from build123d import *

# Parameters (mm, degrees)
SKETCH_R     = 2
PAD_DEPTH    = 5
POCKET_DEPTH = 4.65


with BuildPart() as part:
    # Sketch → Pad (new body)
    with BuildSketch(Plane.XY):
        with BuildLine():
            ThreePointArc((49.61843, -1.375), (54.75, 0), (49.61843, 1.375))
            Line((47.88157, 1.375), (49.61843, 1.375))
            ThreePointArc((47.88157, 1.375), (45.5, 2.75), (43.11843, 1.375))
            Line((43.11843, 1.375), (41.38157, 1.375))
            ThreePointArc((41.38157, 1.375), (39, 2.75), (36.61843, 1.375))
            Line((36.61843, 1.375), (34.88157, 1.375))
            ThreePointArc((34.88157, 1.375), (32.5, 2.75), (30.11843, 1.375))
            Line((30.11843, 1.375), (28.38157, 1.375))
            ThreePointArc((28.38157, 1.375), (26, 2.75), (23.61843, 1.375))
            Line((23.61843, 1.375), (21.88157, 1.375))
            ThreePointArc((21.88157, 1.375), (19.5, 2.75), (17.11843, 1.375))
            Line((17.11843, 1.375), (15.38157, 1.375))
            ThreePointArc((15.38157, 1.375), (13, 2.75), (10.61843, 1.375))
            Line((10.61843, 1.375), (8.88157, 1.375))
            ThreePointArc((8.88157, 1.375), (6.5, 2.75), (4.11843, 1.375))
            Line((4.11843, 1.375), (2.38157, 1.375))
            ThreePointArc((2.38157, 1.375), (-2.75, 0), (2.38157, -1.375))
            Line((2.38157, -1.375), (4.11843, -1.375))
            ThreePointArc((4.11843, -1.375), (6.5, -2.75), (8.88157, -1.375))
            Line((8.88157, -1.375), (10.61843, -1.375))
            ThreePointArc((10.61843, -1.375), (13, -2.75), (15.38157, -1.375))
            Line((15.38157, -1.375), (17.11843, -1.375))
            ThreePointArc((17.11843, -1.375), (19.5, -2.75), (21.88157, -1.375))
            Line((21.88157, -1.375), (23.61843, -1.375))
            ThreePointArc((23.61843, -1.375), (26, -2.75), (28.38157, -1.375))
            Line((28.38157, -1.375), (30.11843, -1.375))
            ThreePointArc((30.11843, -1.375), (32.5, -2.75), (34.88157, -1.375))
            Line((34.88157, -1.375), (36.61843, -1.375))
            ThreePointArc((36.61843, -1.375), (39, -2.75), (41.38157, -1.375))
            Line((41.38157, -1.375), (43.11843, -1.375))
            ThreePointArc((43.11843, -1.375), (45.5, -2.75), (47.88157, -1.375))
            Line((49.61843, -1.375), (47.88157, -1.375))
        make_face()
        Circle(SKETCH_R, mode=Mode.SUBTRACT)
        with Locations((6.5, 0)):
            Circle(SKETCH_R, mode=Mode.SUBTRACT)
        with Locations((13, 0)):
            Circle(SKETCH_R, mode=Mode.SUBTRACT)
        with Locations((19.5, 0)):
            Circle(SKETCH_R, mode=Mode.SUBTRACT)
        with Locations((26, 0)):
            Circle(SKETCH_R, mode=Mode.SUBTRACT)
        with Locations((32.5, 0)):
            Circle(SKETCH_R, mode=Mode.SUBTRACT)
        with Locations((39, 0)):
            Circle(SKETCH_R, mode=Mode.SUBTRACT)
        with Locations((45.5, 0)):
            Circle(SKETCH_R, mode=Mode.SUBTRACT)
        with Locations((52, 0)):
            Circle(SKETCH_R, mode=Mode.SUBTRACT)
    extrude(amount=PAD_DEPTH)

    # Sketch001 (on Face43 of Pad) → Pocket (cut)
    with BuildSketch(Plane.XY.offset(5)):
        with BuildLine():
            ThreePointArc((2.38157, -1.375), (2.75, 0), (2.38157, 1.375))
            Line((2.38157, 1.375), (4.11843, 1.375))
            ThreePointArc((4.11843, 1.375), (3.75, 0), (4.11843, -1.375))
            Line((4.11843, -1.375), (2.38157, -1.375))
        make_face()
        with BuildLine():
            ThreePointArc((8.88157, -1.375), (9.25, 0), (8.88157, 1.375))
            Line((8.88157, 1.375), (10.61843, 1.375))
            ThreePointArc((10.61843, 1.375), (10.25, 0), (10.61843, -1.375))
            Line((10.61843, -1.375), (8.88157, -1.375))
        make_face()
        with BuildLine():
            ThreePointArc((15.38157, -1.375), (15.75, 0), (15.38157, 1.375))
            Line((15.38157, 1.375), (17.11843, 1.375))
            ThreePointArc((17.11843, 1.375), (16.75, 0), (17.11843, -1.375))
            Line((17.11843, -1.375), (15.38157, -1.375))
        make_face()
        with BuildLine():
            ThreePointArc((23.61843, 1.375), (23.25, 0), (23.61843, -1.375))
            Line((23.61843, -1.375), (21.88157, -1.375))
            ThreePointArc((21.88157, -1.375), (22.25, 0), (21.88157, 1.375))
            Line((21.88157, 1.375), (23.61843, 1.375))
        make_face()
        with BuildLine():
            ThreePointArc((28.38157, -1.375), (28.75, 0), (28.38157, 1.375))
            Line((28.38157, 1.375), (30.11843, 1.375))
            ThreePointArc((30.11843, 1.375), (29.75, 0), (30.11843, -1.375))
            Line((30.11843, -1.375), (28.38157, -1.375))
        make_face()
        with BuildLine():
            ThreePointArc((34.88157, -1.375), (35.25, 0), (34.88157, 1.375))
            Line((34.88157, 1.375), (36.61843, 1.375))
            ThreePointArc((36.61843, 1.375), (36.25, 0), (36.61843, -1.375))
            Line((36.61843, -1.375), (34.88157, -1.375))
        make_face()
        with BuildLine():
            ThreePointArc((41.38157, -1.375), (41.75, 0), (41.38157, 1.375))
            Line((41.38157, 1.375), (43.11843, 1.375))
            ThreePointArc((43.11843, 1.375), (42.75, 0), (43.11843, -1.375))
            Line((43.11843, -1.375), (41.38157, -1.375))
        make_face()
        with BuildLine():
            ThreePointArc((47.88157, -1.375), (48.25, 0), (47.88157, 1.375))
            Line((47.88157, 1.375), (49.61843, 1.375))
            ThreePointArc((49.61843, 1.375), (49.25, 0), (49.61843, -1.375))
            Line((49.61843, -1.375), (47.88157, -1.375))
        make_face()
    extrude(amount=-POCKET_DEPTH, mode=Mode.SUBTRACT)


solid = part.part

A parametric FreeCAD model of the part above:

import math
import FreeCAD as App
import Part
import Sketcher
from FreeCAD import Vector
Q = App.Units.Quantity

doc = App.newDocument("Part")
body = doc.addObject("PartDesign::Body", "Body")

sketch1 = body.newObject("Sketcher::SketchObject", "Sketch")
sketch1.AttachmentSupport = (doc.getObject("XY_Plane"), [""])
sketch1.MapMode = "FlatFace"
sketch1.addGeometry([
    Part.ArcOfCircle(Part.Circle(Vector(52, 0, 0), Vector(0, 0, 1), 2.8), math.radians(-150), math.radians(150)),
    Part.LineSegment(Vector(49.6, 1.4, 0), Vector(47.9, 1.4, 0)),
    Part.ArcOfCircle(Part.Circle(Vector(45.5, 0, 0), Vector(0, 0, 1), 2.8), math.radians(30), math.radians(150)),
    Part.LineSegment(Vector(43.1, 1.4, 0), Vector(41.4, 1.4, 0)),
    Part.ArcOfCircle(Part.Circle(Vector(39, 0, 0), Vector(0, 0, 1), 2.8), math.radians(30), math.radians(150)),
    Part.LineSegment(Vector(36.6, 1.4, 0), Vector(34.9, 1.4, 0)),
    Part.ArcOfCircle(Part.Circle(Vector(32.5, 0, 0), Vector(0, 0, 1), 2.8), math.radians(30), math.radians(150)),
    Part.LineSegment(Vector(30.1, 1.4, 0), Vector(28.4, 1.4, 0)),
    Part.ArcOfCircle(Part.Circle(Vector(26, 0, 0), Vector(0, 0, 1), 2.8), math.radians(30), math.radians(150)),
    Part.LineSegment(Vector(23.6, 1.4, 0), Vector(21.9, 1.4, 0)),
    Part.ArcOfCircle(Part.Circle(Vector(19.5, 0, 0), Vector(0, 0, 1), 2.8), math.radians(30), math.radians(150)),
    Part.LineSegment(Vector(17.1, 1.4, 0), Vector(15.4, 1.4, 0)),
    Part.ArcOfCircle(Part.Circle(Vector(13, 0, 0), Vector(0, 0, 1), 2.8), math.radians(30), math.radians(150)),
    Part.LineSegment(Vector(10.6, 1.4, 0), Vector(8.9, 1.4, 0)),
    Part.ArcOfCircle(Part.Circle(Vector(6.5, 0, 0), Vector(0, 0, 1), 2.8), math.radians(30), math.radians(150)),
    Part.LineSegment(Vector(4.1, 1.4, 0), Vector(2.4, 1.4, 0)),
    Part.ArcOfCircle(Part.Circle(Vector(0, 0, 0), Vector(0, 0, 1), 2.8), math.radians(30), math.radians(330)),
    Part.LineSegment(Vector(2.4, -1.4, 0), Vector(4.1, -1.4, 0)),
    Part.ArcOfCircle(Part.Circle(Vector(6.5, 0, 0), Vector(0, 0, 1), 2.8), math.radians(-150), math.radians(-30)),
    Part.LineSegment(Vector(8.9, -1.4, 0), Vector(10.6, -1.4, 0)),
    Part.ArcOfCircle(Part.Circle(Vector(13, 0, 0), Vector(0, 0, 1), 2.8), math.radians(-150), math.radians(-30)),
    Part.LineSegment(Vector(15.4, -1.4, 0), Vector(17.1, -1.4, 0)),
    Part.ArcOfCircle(Part.Circle(Vector(19.5, 0, 0), Vector(0, 0, 1), 2.8), math.radians(-150), math.radians(-30)),
    Part.LineSegment(Vector(21.9, -1.4, 0), Vector(23.6, -1.4, 0)),
    Part.ArcOfCircle(Part.Circle(Vector(26, 0, 0), Vector(0, 0, 1), 2.8), math.radians(-150), math.radians(-30)),
    Part.LineSegment(Vector(28.4, -1.4, 0), Vector(30.1, -1.4, 0)),
    Part.ArcOfCircle(Part.Circle(Vector(32.5, 0, 0), Vector(0, 0, 1), 2.8), math.radians(-150), math.radians(-30)),
    Part.LineSegment(Vector(34.9, -1.4, 0), Vector(36.6, -1.4, 0)),
    Part.ArcOfCircle(Part.Circle(Vector(39, 0, 0), Vector(0, 0, 1), 2.8), math.radians(-150), math.radians(-30)),
    Part.LineSegment(Vector(41.4, -1.4, 0), Vector(43.1, -1.4, 0)),
    Part.ArcOfCircle(Part.Circle(Vector(45.5, 0, 0), Vector(0, 0, 1), 2.8), math.radians(-150), math.radians(-30)),
    Part.LineSegment(Vector(47.9, -1.4, 0), Vector(49.6, -1.4, 0)),
    Part.Circle(Vector(0, 0, 0), Vector(0, 0, 1), 2),
    Part.Circle(Vector(6.5, 0, 0), Vector(0, 0, 1), 2),
    Part.Circle(Vector(13, 0, 0), Vector(0, 0, 1), 2),
    Part.Circle(Vector(19.5, 0, 0), Vector(0, 0, 1), 2),
    Part.Circle(Vector(26, 0, 0), Vector(0, 0, 1), 2),
    Part.Circle(Vector(32.5, 0, 0), Vector(0, 0, 1), 2),
    Part.Circle(Vector(39, 0, 0), Vector(0, 0, 1), 2),
    Part.Circle(Vector(45.5, 0, 0), Vector(0, 0, 1), 2),
    Part.Circle(Vector(52, 0, 0), Vector(0, 0, 1), 2),
], False)
sketch1.addConstraint([
    Sketcher.Constraint("Coincident", 0, 2, 1, 1),
    Sketcher.Constraint("Coincident", 1, 2, 2, 1),
    Sketcher.Constraint("Coincident", 2, 2, 3, 1),
    Sketcher.Constraint("Coincident", 3, 2, 4, 1),
    Sketcher.Constraint("Coincident", 4, 2, 5, 1),
    Sketcher.Constraint("Coincident", 5, 2, 6, 1),
    Sketcher.Constraint("Coincident", 6, 2, 7, 1),
    Sketcher.Constraint("Coincident", 7, 2, 8, 1),
    Sketcher.Constraint("Coincident", 8, 2, 9, 1),
    Sketcher.Constraint("Coincident", 9, 2, 10, 1),
    Sketcher.Constraint("Coincident", 10, 2, 11, 1),
    Sketcher.Constraint("Coincident", 11, 2, 12, 1),
    Sketcher.Constraint("Coincident", 12, 2, 13, 1),
    Sketcher.Constraint("Coincident", 13, 2, 14, 1),
    Sketcher.Constraint("Coincident", 14, 2, 15, 1),
    Sketcher.Constraint("Coincident", 15, 2, 16, 1),
    Sketcher.Constraint("Coincident", 16, 2, 17, 1),
    Sketcher.Constraint("Coincident", 17, 2, 18, 1),
    Sketcher.Constraint("Coincident", 18, 2, 19, 1),
    Sketcher.Constraint("Coincident", 19, 2, 20, 1),
    Sketcher.Constraint("Coincident", 20, 2, 21, 1),
    Sketcher.Constraint("Coincident", 21, 2, 22, 1),
    Sketcher.Constraint("Coincident", 22, 2, 23, 1),
    Sketcher.Constraint("Coincident", 23, 2, 24, 1),
    Sketcher.Constraint("Coincident", 24, 2, 25, 1),
    Sketcher.Constraint("Coincident", 25, 2, 26, 1),
    Sketcher.Constraint("Coincident", 26, 2, 27, 1),
    Sketcher.Constraint("Coincident", 27, 2, 28, 1),
    Sketcher.Constraint("Coincident", 28, 2, 29, 1),
    Sketcher.Constraint("Coincident", 29, 2, 30, 1),
    Sketcher.Constraint("Coincident", 30, 2, 31, 1),
    Sketcher.Constraint("Coincident", 31, 2, 0, 1),
    Sketcher.Constraint("Horizontal", 1),
    Sketcher.Constraint("Horizontal", 3),
    Sketcher.Constraint("Horizontal", 5),
    Sketcher.Constraint("Horizontal", 7),
    Sketcher.Constraint("Horizontal", 9),
    Sketcher.Constraint("Horizontal", 11),
    Sketcher.Constraint("Horizontal", 13),
    Sketcher.Constraint("Horizontal", 15),
    Sketcher.Constraint("Horizontal", 17),
    Sketcher.Constraint("Horizontal", 19),
    Sketcher.Constraint("Horizontal", 21),
    Sketcher.Constraint("Horizontal", 23),
    Sketcher.Constraint("Horizontal", 25),
    Sketcher.Constraint("Horizontal", 27),
    Sketcher.Constraint("Horizontal", 29),
    Sketcher.Constraint("Horizontal", 31),
    Sketcher.Constraint("Coincident", 16, 3, -1, 1),
    Sketcher.Constraint("Coincident", 32, 3, -1, 1),
    Sketcher.Constraint("Coincident", 18, 3, 14, 3),
    Sketcher.Constraint("Coincident", 20, 3, 12, 3),
    Sketcher.Constraint("Coincident", 22, 3, 10, 3),
    Sketcher.Constraint("Coincident", 24, 3, 8, 3),
    Sketcher.Constraint("Coincident", 26, 3, 6, 3),
    Sketcher.Constraint("Coincident", 28, 3, 4, 3),
    Sketcher.Constraint("Coincident", 30, 3, 2, 3),
    Sketcher.Constraint("Coincident", 33, 3, 14, 3),
    Sketcher.Constraint("Coincident", 34, 3, 12, 3),
    Sketcher.Constraint("Coincident", 35, 3, 10, 3),
    Sketcher.Constraint("Coincident", 36, 3, 8, 3),
    Sketcher.Constraint("Coincident", 37, 3, 6, 3),
    Sketcher.Constraint("Coincident", 38, 3, 4, 3),
    Sketcher.Constraint("Coincident", 39, 3, 2, 3),
    Sketcher.Constraint("Coincident", 40, 3, 0, 3),
    Sketcher.Constraint("Equal", 0, 2),
    Sketcher.Constraint("Equal", 2, 4),
    Sketcher.Constraint("Equal", 4, 6),
    Sketcher.Constraint("Equal", 6, 8),
    Sketcher.Constraint("Equal", 8, 10),
    Sketcher.Constraint("Equal", 10, 12),
    Sketcher.Constraint("Equal", 12, 14),
    Sketcher.Constraint("Equal", 14, 16),
    Sketcher.Constraint("Equal", 16, 18),
    Sketcher.Constraint("Equal", 18, 20),
    Sketcher.Constraint("Equal", 20, 22),
    Sketcher.Constraint("Equal", 22, 24),
    Sketcher.Constraint("Equal", 24, 26),
    Sketcher.Constraint("Equal", 26, 28),
    Sketcher.Constraint("Equal", 28, 30),
    Sketcher.Constraint("Equal", 32, 33),
    Sketcher.Constraint("Equal", 33, 34),
    Sketcher.Constraint("Equal", 34, 35),
    Sketcher.Constraint("Equal", 35, 36),
    Sketcher.Constraint("Equal", 36, 37),
    Sketcher.Constraint("Equal", 37, 38),
    Sketcher.Constraint("Equal", 38, 39),
    Sketcher.Constraint("Equal", 39, 40),
    Sketcher.Constraint("Symmetric", 14, 2, 17, 2, -1),
    Sketcher.Constraint("Symmetric", 12, 2, 19, 2, -1),
    Sketcher.Constraint("Symmetric", 10, 2, 21, 2, -1),
    Sketcher.Constraint("Symmetric", 8, 2, 23, 2, -1),
    Sketcher.Constraint("Symmetric", 6, 2, 25, 2, -1),
    Sketcher.Constraint("Symmetric", 4, 2, 27, 2, -1),
    Sketcher.Constraint("Symmetric", 2, 2, 29, 2, -1),
    Sketcher.Constraint("Symmetric", 0, 2, 31, 2, -1),
    Sketcher.Constraint("Horizontal", 1, 2, 2, 2),
    Sketcher.Constraint("Horizontal", 3, 2, 4, 2),
    Sketcher.Constraint("Horizontal", 5, 2, 6, 2),
    Sketcher.Constraint("Horizontal", 7, 2, 8, 2),
    Sketcher.Constraint("Horizontal", 9, 2, 10, 2),
    Sketcher.Constraint("Horizontal", 11, 2, 12, 2),
    Sketcher.Constraint("Horizontal", 13, 2, 14, 2),
    Sketcher.Constraint("Equal", 1, 3),
    Sketcher.Constraint("Equal", 3, 5),
    Sketcher.Constraint("Equal", 5, 7),
    Sketcher.Constraint("Equal", 7, 9),
    Sketcher.Constraint("Equal", 9, 11),
    Sketcher.Constraint("Equal", 11, 13),
    Sketcher.Constraint("Equal", 13, 15),
    Sketcher.Constraint("Diameter", 32, Q("4 mm")),
    Sketcher.Constraint("Radius", 0, Q("2.75 mm")),
    Sketcher.Constraint("DistanceX", -1, 1, 0, 3, Q("52 mm")),
    Sketcher.Constraint("DistanceY", 16, 2, 15, 2, Q("2.75 mm")),
])
pad1 = body.newObject("PartDesign::Pad", "Pad")
pad1.Profile = sketch1
pad1.Length = 5

sketch2 = body.newObject("Sketcher::SketchObject", "Sketch001")
sketch2.AttachmentSupport = (doc.getObject("XY_Plane"), [""])
sketch2.MapMode = "FlatFace"
sketch2.AttachmentOffset = App.Placement(Vector(0, 0, 5), App.Rotation())
sketch2.addGeometry([
    Part.ArcOfCircle(Part.Circle(Vector(0, 0, 0), Vector(0, 0, 1), 2.8), math.radians(-30), math.radians(30)),
    Part.LineSegment(Vector(2.4, -1.4, 0), Vector(4.1, -1.4, 0)),
    Part.ArcOfCircle(Part.Circle(Vector(6.5, 0, 0), Vector(0, 0, 1), 2.8), math.radians(150), math.radians(210)),
    Part.LineSegment(Vector(4.1, 1.4, 0), Vector(2.4, 1.4, 0)),
    Part.ArcOfCircle(Part.Circle(Vector(6.5, 0, 0), Vector(0, 0, 1), 2.8), math.radians(-30), math.radians(30)),
    Part.LineSegment(Vector(8.9, -1.4, 0), Vector(10.6, -1.4, 0)),
    Part.ArcOfCircle(Part.Circle(Vector(13, 0, 0), Vector(0, 0, 1), 2.8), math.radians(150), math.radians(210)),
    Part.LineSegment(Vector(10.6, 1.4, 0), Vector(8.9, 1.4, 0)),
    Part.ArcOfCircle(Part.Circle(Vector(13, 0, 0), Vector(0, 0, 1), 2.8), math.radians(-30), math.radians(30)),
    Part.LineSegment(Vector(15.4, -1.4, 0), Vector(17.1, -1.4, 0)),
    Part.ArcOfCircle(Part.Circle(Vector(19.5, 0, 0), Vector(0, 0, 1), 2.8), math.radians(150), math.radians(210)),
    Part.LineSegment(Vector(17.1, 1.4, 0), Vector(15.4, 1.4, 0)),
    Part.ArcOfCircle(Part.Circle(Vector(26, 0, 0), Vector(0, 0, 1), 2.8), math.radians(150), math.radians(210)),
    Part.LineSegment(Vector(23.6, 1.4, 0), Vector(21.9, 1.4, 0)),
    Part.ArcOfCircle(Part.Circle(Vector(19.5, 0, 0), Vector(0, 0, 1), 2.8), math.radians(-30), math.radians(30)),
    Part.LineSegment(Vector(21.9, -1.4, 0), Vector(23.6, -1.4, 0)),
    Part.ArcOfCircle(Part.Circle(Vector(26, 0, 0), Vector(0, 0, 1), 2.8), math.radians(-30), math.radians(30)),
    Part.LineSegment(Vector(28.4, -1.4, 0), Vector(30.1, -1.4, 0)),
    Part.ArcOfCircle(Part.Circle(Vector(32.5, 0, 0), Vector(0, 0, 1), 2.8), math.radians(150), math.radians(210)),
    Part.LineSegment(Vector(30.1, 1.4, 0), Vector(28.4, 1.4, 0)),
    Part.ArcOfCircle(Part.Circle(Vector(32.5, 0, 0), Vector(0, 0, 1), 2.8), math.radians(-30), math.radians(30)),
    Part.LineSegment(Vector(34.9, -1.4, 0), Vector(36.6, -1.4, 0)),
    Part.ArcOfCircle(Part.Circle(Vector(39, 0, 0), Vector(0, 0, 1), 2.8), math.radians(150), math.radians(210)),
    Part.LineSegment(Vector(36.6, 1.4, 0), Vector(34.9, 1.4, 0)),
    Part.ArcOfCircle(Part.Circle(Vector(39, 0, 0), Vector(0, 0, 1), 2.8), math.radians(-30), math.radians(30)),
    Part.LineSegment(Vector(41.4, -1.4, 0), Vector(43.1, -1.4, 0)),
    Part.ArcOfCircle(Part.Circle(Vector(45.5, 0, 0), Vector(0, 0, 1), 2.8), math.radians(150), math.radians(210)),
    Part.LineSegment(Vector(43.1, 1.4, 0), Vector(41.4, 1.4, 0)),
    Part.ArcOfCircle(Part.Circle(Vector(45.5, 0, 0), Vector(0, 0, 1), 2.8), math.radians(-30), math.radians(30)),
    Part.LineSegment(Vector(47.9, -1.4, 0), Vector(49.6, -1.4, 0)),
    Part.ArcOfCircle(Part.Circle(Vector(52, 0, 0), Vector(0, 0, 1), 2.8), math.radians(150), math.radians(210)),
    Part.LineSegment(Vector(49.6, 1.4, 0), Vector(47.9, 1.4, 0)),
], False)
sketch2.addConstraint([
    Sketcher.Constraint("Coincident", 0, 1, 1, 1),
    Sketcher.Constraint("Coincident", 1, 2, 2, 2),
    Sketcher.Constraint("Coincident", 2, 1, 3, 1),
    Sketcher.Constraint("Coincident", 3, 2, 0, 2),
    Sketcher.Constraint("Coincident", 4, 1, 5, 1),
    Sketcher.Constraint("Coincident", 5, 2, 6, 2),
    Sketcher.Constraint("Coincident", 6, 1, 7, 1),
    Sketcher.Constraint("Coincident", 7, 2, 4, 2),
    Sketcher.Constraint("Coincident", 8, 1, 9, 1),
    Sketcher.Constraint("Coincident", 9, 2, 10, 2),
    Sketcher.Constraint("Coincident", 10, 1, 11, 1),
    Sketcher.Constraint("Coincident", 11, 2, 8, 2),
    Sketcher.Constraint("Coincident", 12, 1, 13, 1),
    Sketcher.Constraint("Coincident", 13, 2, 14, 2),
    Sketcher.Constraint("Coincident", 14, 1, 15, 1),
    Sketcher.Constraint("Coincident", 15, 2, 12, 2),
    Sketcher.Constraint("Coincident", 16, 1, 17, 1),
    Sketcher.Constraint("Coincident", 17, 2, 18, 2),
    Sketcher.Constraint("Coincident", 18, 1, 19, 1),
    Sketcher.Constraint("Coincident", 19, 2, 16, 2),
    Sketcher.Constraint("Coincident", 20, 1, 21, 1),
    Sketcher.Constraint("Coincident", 21, 2, 22, 2),
    Sketcher.Constraint("Coincident", 22, 1, 23, 1),
    Sketcher.Constraint("Coincident", 23, 2, 20, 2),
    Sketcher.Constraint("Coincident", 24, 1, 25, 1),
    Sketcher.Constraint("Coincident", 25, 2, 26, 2),
    Sketcher.Constraint("Coincident", 26, 1, 27, 1),
    Sketcher.Constraint("Coincident", 27, 2, 24, 2),
    Sketcher.Constraint("Coincident", 28, 1, 29, 1),
    Sketcher.Constraint("Coincident", 29, 2, 30, 2),
    Sketcher.Constraint("Coincident", 30, 1, 31, 1),
    Sketcher.Constraint("Coincident", 31, 2, 28, 2),
    Sketcher.Constraint("Horizontal", 1),
    Sketcher.Constraint("Horizontal", 3),
    Sketcher.Constraint("Horizontal", 5),
    Sketcher.Constraint("Horizontal", 7),
    Sketcher.Constraint("Horizontal", 9),
    Sketcher.Constraint("Horizontal", 11),
    Sketcher.Constraint("Horizontal", 13),
    Sketcher.Constraint("Horizontal", 15),
    Sketcher.Constraint("Horizontal", 17),
    Sketcher.Constraint("Horizontal", 19),
    Sketcher.Constraint("Horizontal", 21),
    Sketcher.Constraint("Horizontal", 23),
    Sketcher.Constraint("Horizontal", 25),
    Sketcher.Constraint("Horizontal", 27),
    Sketcher.Constraint("Horizontal", 29),
    Sketcher.Constraint("Horizontal", 31),
    Sketcher.Constraint("Coincident", 0, 3, -1, 1),
    Sketcher.Constraint("Coincident", 4, 3, 2, 3),
    Sketcher.Constraint("Coincident", 8, 3, 6, 3),
    Sketcher.Constraint("Coincident", 14, 3, 10, 3),
    Sketcher.Constraint("Coincident", 16, 3, 12, 3),
    Sketcher.Constraint("Coincident", 20, 3, 18, 3),
    Sketcher.Constraint("Coincident", 24, 3, 22, 3),
    Sketcher.Constraint("Coincident", 28, 3, 26, 3),
    Sketcher.Constraint("Equal", 0, 2),
    Sketcher.Constraint("Equal", 2, 4),
    Sketcher.Constraint("Equal", 4, 6),
    Sketcher.Constraint("Equal", 6, 8),
    Sketcher.Constraint("Equal", 8, 10),
    Sketcher.Constraint("Equal", 10, 12),
    Sketcher.Constraint("Equal", 12, 14),
    Sketcher.Constraint("Equal", 14, 16),
    Sketcher.Constraint("Equal", 16, 18),
    Sketcher.Constraint("Equal", 18, 20),
    Sketcher.Constraint("Equal", 20, 22),
    Sketcher.Constraint("Equal", 22, 24),
    Sketcher.Constraint("Equal", 24, 26),
    Sketcher.Constraint("Equal", 26, 28),
    Sketcher.Constraint("Equal", 28, 30),
    Sketcher.Constraint("Symmetric", 1, 2, 2, 1, -1),
    Sketcher.Constraint("Symmetric", 5, 2, 6, 1, -1),
    Sketcher.Constraint("Symmetric", 9, 2, 10, 1, -1),
    Sketcher.Constraint("Symmetric", 12, 1, 15, 2, -1),
    Sketcher.Constraint("Symmetric", 17, 2, 18, 1, -1),
    Sketcher.Constraint("Symmetric", 21, 2, 22, 1, -1),
    Sketcher.Constraint("Symmetric", 25, 2, 26, 1, -1),
    Sketcher.Constraint("Symmetric", 29, 2, 30, 1, -1),
    Sketcher.Constraint("Horizontal", 1, 2, 4, 1),
    Sketcher.Constraint("Horizontal", 5, 2, 8, 1),
    Sketcher.Constraint("Horizontal", 11, 2, 12, 1),
    Sketcher.Constraint("Horizontal", 15, 2, 16, 1),
    Sketcher.Constraint("Horizontal", 17, 2, 20, 1),
    Sketcher.Constraint("Horizontal", 21, 2, 24, 1),
    Sketcher.Constraint("Horizontal", 25, 2, 28, 1),
    Sketcher.Constraint("Equal", 3, 5),
    Sketcher.Constraint("Equal", 7, 9),
    Sketcher.Constraint("Equal", 11, 13),
    Sketcher.Constraint("Equal", 15, 17),
    Sketcher.Constraint("Equal", 19, 21),
    Sketcher.Constraint("Equal", 23, 25),
    Sketcher.Constraint("Equal", 27, 29),
    Sketcher.Constraint("Radius", 0, Q("2.750001 mm")),
    Sketcher.Constraint("DistanceX", -1, 1, 6, 3, Q("13.000001 mm")),
    Sketcher.Constraint("DistanceY", 1, 2, 2, 1, Q("2.75 mm")),
])
pocket1 = body.newObject("PartDesign::Pocket", "Pocket")
pocket1.Profile = sketch2
pocket1.Length = 4.65

doc.recompute()
